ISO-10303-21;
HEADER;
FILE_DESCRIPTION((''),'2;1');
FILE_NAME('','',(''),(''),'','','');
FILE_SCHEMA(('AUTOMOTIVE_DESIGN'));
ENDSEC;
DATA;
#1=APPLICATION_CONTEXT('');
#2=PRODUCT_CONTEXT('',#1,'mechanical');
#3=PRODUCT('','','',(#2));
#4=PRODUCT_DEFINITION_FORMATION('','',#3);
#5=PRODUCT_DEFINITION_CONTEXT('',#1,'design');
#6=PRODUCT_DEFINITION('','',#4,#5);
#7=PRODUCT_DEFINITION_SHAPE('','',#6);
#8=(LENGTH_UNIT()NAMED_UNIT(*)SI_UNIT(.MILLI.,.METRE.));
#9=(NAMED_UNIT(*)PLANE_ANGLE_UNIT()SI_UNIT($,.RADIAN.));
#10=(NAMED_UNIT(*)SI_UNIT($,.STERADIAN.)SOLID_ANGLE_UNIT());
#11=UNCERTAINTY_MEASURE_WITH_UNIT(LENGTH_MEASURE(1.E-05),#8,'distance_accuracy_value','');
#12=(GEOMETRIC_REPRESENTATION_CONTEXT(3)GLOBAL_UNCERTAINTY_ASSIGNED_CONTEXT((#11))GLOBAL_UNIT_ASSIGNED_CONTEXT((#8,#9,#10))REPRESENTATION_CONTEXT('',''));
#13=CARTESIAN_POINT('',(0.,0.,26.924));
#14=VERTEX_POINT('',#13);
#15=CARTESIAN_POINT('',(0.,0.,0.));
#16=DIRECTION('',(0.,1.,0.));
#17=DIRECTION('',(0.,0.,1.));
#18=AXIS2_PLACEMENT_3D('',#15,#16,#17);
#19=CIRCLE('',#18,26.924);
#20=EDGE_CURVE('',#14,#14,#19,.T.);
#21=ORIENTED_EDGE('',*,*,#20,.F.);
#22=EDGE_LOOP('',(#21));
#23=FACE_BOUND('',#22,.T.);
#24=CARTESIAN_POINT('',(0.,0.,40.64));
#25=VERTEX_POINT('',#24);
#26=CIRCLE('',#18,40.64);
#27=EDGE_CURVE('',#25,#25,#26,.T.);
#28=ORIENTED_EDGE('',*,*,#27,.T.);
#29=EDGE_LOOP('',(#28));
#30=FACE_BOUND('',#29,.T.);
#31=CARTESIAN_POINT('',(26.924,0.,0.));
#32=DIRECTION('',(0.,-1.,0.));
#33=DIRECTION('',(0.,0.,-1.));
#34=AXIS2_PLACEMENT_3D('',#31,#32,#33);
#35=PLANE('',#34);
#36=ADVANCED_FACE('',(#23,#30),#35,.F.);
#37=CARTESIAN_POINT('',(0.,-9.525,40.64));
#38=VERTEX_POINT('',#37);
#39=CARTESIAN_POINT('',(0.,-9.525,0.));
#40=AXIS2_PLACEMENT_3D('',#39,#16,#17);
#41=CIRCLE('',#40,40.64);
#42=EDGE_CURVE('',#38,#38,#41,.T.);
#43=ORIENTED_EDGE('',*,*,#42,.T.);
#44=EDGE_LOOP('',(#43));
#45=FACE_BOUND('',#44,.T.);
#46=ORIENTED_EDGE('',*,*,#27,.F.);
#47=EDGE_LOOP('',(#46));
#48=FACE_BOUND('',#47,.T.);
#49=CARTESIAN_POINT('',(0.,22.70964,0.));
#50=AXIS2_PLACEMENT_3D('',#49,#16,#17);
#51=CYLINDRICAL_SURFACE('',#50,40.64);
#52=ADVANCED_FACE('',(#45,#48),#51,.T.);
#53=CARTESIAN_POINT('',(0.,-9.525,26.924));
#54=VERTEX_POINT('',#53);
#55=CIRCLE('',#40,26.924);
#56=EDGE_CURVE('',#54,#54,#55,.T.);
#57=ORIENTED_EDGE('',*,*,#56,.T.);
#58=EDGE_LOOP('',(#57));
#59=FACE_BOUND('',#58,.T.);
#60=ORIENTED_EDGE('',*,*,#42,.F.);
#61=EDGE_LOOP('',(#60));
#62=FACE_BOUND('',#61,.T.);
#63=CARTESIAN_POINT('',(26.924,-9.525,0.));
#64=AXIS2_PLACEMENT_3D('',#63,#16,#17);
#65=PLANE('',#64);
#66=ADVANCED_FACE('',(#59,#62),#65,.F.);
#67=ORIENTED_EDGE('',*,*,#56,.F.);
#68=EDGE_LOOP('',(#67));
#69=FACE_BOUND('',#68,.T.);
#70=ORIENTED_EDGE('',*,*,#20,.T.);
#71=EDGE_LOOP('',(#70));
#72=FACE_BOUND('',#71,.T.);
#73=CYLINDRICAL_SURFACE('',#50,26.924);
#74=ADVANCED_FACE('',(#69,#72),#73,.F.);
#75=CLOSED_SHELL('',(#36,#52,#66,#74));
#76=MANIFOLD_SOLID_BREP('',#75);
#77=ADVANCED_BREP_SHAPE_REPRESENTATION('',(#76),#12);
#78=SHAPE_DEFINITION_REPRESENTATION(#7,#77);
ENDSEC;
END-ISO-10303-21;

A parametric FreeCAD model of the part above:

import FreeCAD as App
import Part
import Sketcher
from FreeCAD import Vector
Q = App.Units.Quantity

doc = App.newDocument("Part")
body = doc.addObject("PartDesign::Body", "Body")

sketch1 = body.newObject("Sketcher::SketchObject", "Sketch")
sketch1.AttachmentSupport = (doc.getObject("XY_Plane"), [""])
sketch1.MapMode = "FlatFace"
sketch1.addGeometry(Part.LineSegment(Vector(27, 0, 0), Vector(27, -10, 0)), False)
sketch1.addGeometry(Part.LineSegment(Vector(27, -10, 0), Vector(41, -10, 0)), False)
sketch1.addGeometry(Part.LineSegment(Vector(41, -10, 0), Vector(41, 0, 0)), False)
sketch1.addGeometry(Part.LineSegment(Vector(41, 0, 0), Vector(27, 0, 0)), False)
sketch1.addConstraint(Sketcher.Constraint("Coincident", 0, 2, 1, 1))
sketch1.addConstraint(Sketcher.Constraint("Coincident", 1, 2, 2, 1))
sketch1.addConstraint(Sketcher.Constraint("Coincident", 2, 2, 3, 1))
sketch1.addConstraint(Sketcher.Constraint("Coincident", 3, 2, 0, 1))
sketch1.addConstraint(Sketcher.Constraint("Vertical", 0))
sketch1.addConstraint(Sketcher.Constraint("Horizontal", 1))
sketch1.addConstraint(Sketcher.Constraint("Vertical", 2))
sketch1.addConstraint(Sketcher.Constraint("Horizontal", 3))
sketch1.addConstraint(Sketcher.Constraint("PointOnObject", 2, 2, -1))
sketch1.addConstraint(Sketcher.Constraint("DistanceX", 1, 1, 1, 2, Q("0.54 in")))
sketch1.addConstraint(Sketcher.Constraint("DistanceX", -1, 1, 1, 2, Q("1.6 in")))
sketch1.addConstraint(Sketcher.Constraint("DistanceY", 0, 2, 0, 1, Q("0.375 in")))
revolution = body.newObject("PartDesign::Revolution", "Revolution")
revolution.Profile = sketch1
revolution.ReferenceAxis = (sketch1, ["V_Axis"])
revolution.Angle = 360

doc.recompute()
